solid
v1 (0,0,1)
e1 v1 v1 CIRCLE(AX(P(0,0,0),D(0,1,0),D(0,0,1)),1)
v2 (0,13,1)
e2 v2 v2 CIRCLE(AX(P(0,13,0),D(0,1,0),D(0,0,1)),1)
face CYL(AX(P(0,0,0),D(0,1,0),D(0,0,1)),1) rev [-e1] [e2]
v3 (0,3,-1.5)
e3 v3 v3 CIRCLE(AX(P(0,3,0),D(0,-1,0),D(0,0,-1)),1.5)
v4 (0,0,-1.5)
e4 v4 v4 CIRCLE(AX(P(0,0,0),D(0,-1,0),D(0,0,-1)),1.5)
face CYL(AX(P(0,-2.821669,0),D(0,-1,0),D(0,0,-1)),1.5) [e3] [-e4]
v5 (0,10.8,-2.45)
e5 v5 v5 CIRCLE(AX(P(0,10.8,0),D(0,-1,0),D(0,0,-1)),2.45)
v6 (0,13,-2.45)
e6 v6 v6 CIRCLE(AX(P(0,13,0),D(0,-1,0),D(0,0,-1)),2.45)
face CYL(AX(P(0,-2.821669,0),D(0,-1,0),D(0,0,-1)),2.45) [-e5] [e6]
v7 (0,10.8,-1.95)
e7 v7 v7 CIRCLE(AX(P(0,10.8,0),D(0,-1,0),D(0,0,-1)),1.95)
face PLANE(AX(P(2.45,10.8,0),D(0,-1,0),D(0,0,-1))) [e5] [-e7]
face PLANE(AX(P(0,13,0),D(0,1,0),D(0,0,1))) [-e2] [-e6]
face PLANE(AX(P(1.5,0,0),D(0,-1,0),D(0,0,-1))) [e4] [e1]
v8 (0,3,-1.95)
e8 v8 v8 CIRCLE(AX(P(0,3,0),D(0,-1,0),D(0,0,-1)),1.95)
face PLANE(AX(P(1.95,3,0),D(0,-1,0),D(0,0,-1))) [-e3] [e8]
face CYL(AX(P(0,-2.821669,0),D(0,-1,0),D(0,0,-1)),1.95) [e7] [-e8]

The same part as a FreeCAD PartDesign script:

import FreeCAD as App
import Part
import Sketcher

V = App.Vector
Q = App.Units.Quantity

doc = App.newDocument("Part")
params = doc.addObject("Spreadsheet::Sheet", "Params")
for row, (alias, value) in enumerate([
    ("sketch1_height", "13 mm"),
    ("sketch1_height2", "3 mm"),
    ("sketch1_width", "1.5 mm"),
    ("sketch1_width2", "0.5 mm"),
    ("sketch1_height3", "7.8 mm"),
    ("revolution_angle", "360 deg"),
    ("sketch2_diameter", "2 mm"),
], start=1):
    params.set(f"A{row}", alias)
    params.set(f"B{row}", "=" + value)
    params.setAlias(f"B{row}", alias)

body = doc.addObject("PartDesign::Body", "Body")

sketch1 = body.newObject("Sketcher::SketchObject", "Sketch")
sketch1.AttachmentSupport = (doc.getObject("XY_Plane"), [""])
sketch1.MapMode = "FlatFace"
sketch1.addGeometry([
    Part.LineSegment(V(2.45, 13, 0), V(0, 13, 0)),
    Part.LineSegment(V(0, 13, 0), V(0, 0, 0)),
    Part.LineSegment(V(0, 0, 0), V(1.5, 0, 0)),
    Part.LineSegment(V(1.5, 0, 0), V(1.5, 3, 0)),
    Part.LineSegment(V(1.5, 3, 0), V(1.95, 3, 0)),
    Part.LineSegment(V(1.95, 3, 0), V(1.95, 10.8, 0)),
    Part.LineSegment(V(1.95, 10.8, 0), V(2.45, 10.8, 0)),
    Part.LineSegment(V(2.45, 10.8, 0), V(2.45, 13, 0)),
], False)
sketch1.addConstraint([
    Sketcher.Constraint("Coincident", 0, 2, 1, 1),
    Sketcher.Constraint("Coincident", 1, 2, 2, 1),
    Sketcher.Constraint("Coincident", 2, 2, 3, 1),
    Sketcher.Constraint("Coincident", 3, 2, 4, 1),
    Sketcher.Constraint("Coincident", 4, 2, 5, 1),
    Sketcher.Constraint("Coincident", 5, 2, 6, 1),
    Sketcher.Constraint("Coincident", 6, 2, 7, 1),
    Sketcher.Constraint("Coincident", 7, 2, 0, 1),
    Sketcher.Constraint("Horizontal", 0),
    Sketcher.Constraint("Vertical", 1),
    Sketcher.Constraint("Horizontal", 2),
    Sketcher.Constraint("Vertical", 3),
    Sketcher.Constraint("Horizontal", 4),
    Sketcher.Constraint("Vertical", 5),
    Sketcher.Constraint("Horizontal", 6),
    Sketcher.Constraint("Vertical", 7),
    Sketcher.Constraint("Coincident", 1, 2, -1, 1),
    Sketcher.Constraint("DistanceY", 1, 2, 1, 1, Q("13 mm")),
    Sketcher.Constraint("DistanceY", 3, 1, 3, 2, Q("3 mm")),
    Sketcher.Constraint("DistanceX", 2, 1, 2, 2, Q("1.5 mm")),
    Sketcher.Constraint("DistanceX", 6, 1, 6, 2, Q("0.5 mm")),
    Sketcher.Constraint("DistanceY", 5, 1, 5, 2, Q("7.8 mm")),
    Sketcher.Constraint("DistanceX", 0, 2, 0, 1, Q("2.45 mm")),
])
sketch1.setExpression("Constraints[17]", "Params.sketch1_height")
sketch1.setExpression("Constraints[18]", "Params.sketch1_height2")
sketch1.setExpression("Constraints[19]", "Params.sketch1_width")
sketch1.setExpression("Constraints[20]", "Params.sketch1_width2")
sketch1.setExpression("Constraints[21]", "Params.sketch1_height3")
revolution = body.newObject("PartDesign::Revolution", "Revolution")
revolution.Profile = sketch1
revolution.ReferenceAxis = (sketch1, ["V_Axis"])
revolution.setExpression("Angle", "Params.revolution_angle")

sketch2 = body.newObject("Sketcher::SketchObject", "Sketch001")
sketch2.AttachmentSupport = (doc.getObject("XZ_Plane"), [""])
sketch2.MapMode = "FlatFace"
sketch2.AttachmentOffset = App.Placement(V(0, 0, -13), App.Rotation())
sketch2.addGeometry(Part.Circle(V(0, 0, 0), V(0, 0, 1), 1), False)
sketch2.addConstraint([
    Sketcher.Constraint("Coincident", 0, 3, -1, 1),
    Sketcher.Constraint("Diameter", 0, Q("2 mm")),
])
sketch2.setExpression("Constraints[1]", "Params.sketch2_diameter")
pocket1 = body.newObject("PartDesign::Pocket", "Pocket")
pocket1.Profile = sketch2
pocket1.Type = "ThroughAll"
pocket1.Reversed = True

doc.recompute()
